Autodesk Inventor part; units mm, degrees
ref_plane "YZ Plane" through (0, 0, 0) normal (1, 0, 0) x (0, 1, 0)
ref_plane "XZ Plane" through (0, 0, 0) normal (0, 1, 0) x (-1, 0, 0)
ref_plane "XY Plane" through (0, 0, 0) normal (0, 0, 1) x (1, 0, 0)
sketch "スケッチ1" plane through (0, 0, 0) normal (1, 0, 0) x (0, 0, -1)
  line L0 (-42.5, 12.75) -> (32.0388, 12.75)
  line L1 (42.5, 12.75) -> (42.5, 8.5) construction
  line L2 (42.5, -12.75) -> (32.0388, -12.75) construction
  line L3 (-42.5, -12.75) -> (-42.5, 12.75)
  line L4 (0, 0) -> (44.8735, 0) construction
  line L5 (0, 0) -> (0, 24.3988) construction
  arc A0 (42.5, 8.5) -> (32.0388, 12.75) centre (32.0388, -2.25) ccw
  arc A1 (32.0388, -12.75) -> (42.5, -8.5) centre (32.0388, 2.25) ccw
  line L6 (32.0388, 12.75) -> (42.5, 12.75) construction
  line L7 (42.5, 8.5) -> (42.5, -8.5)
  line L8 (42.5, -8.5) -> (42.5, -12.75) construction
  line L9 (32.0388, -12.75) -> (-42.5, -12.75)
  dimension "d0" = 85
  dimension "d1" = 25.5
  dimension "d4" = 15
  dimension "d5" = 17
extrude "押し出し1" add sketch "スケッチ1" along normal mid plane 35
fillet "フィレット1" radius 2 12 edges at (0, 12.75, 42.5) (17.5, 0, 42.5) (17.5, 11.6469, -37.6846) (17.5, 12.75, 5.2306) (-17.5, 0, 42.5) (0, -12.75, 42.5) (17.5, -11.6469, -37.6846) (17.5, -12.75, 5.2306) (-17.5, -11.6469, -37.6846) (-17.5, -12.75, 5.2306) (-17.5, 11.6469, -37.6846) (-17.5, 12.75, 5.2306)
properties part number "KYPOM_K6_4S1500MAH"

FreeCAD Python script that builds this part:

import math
import FreeCAD as App
import Part
import Sketcher
from FreeCAD import Vector
Q = App.Units.Quantity


def edges_at(feature, points):
    """Names of the edges that pass closest to the given points."""
    edges = feature.Shape.Edges
    near = lambda p: min(range(len(edges)), key=lambda i: edges[i].distToShape(Part.Vertex(*p))[0])
    return sorted({f"Edge{near(p) + 1}" for p in points})

doc = App.newDocument("Part")
params = doc.addObject("Spreadsheet::Sheet", "Params")
for row, (alias, value) in enumerate([
    ("sketch1_radius", "15 mm"),
    ("sketch1_width", "17 mm"),
    ("sketch1_width2", "25.5 mm"),
    ("pad1_length", "35 mm"),
    ("fillet_radius", "2 mm"),
], start=1):
    params.set(f"A{row}", alias)
    params.set(f"B{row}", "=" + value)
    params.setAlias(f"B{row}", alias)

body = doc.addObject("PartDesign::Body", "Body")

sketch1 = body.newObject("Sketcher::SketchObject", "Sketch")
sketch1.AttachmentSupport = (doc.getObject("YZ_Plane"), [""])
sketch1.MapMode = "FlatFace"
sketch1.addGeometry([
    Part.LineSegment(Vector(13, -32, 0), Vector(13, 42, 0)),
    Part.LineSegment(Vector(13, 42, 0), Vector(-13, 42, 0)),
    Part.LineSegment(Vector(-13, 42, 0), Vector(-13, -32, 0)),
    Part.ArcOfCircle(Part.Circle(Vector(2, -32, 0), Vector(0, 0, 1), 15), math.radians(180), math.radians(224)),
    Part.LineSegment(Vector(-8, -42, 0), Vector(8, -42, 0)),
    Part.ArcOfCircle(Part.Circle(Vector(-2, -32, 0), Vector(0, 0, 1), 15), math.radians(-44), math.radians(0)),
], False)
sketch1.addConstraint([
    Sketcher.Constraint("Coincident", 0, 2, 1, 1),
    Sketcher.Constraint("Coincident", 1, 2, 2, 1),
    Sketcher.Constraint("Tangent", 2, 2, 3, 1),
    Sketcher.Constraint("Coincident", 3, 2, 4, 1),
    Sketcher.Constraint("Coincident", 4, 2, 5, 1),
    Sketcher.Constraint("Tangent", 5, 2, 0, 1),
    Sketcher.Constraint("Vertical", 0),
    Sketcher.Constraint("Horizontal", 1),
    Sketcher.Constraint("Vertical", 2),
    Sketcher.Constraint("Horizontal", 4),
    Sketcher.Constraint("Equal", 3, 5),
    Sketcher.Constraint("Symmetric", 3, 3, 5, 3, -2),
    Sketcher.Constraint("Radius", 3, Q("15 mm")),
    Sketcher.Constraint("DistanceX", 4, 1, 4, 2, Q("17 mm")),
    Sketcher.Constraint("DistanceX", 1, 2, 1, 1, Q("25.5 mm")),
    Sketcher.Constraint("DistanceY", 3, 2, 1, 2, Q("85 mm")),
    Sketcher.Constraint("DistanceY", -1, 1, 0, 2, Q("42.5 mm")),
])
sketch1.setExpression("Constraints[12]", "Params.sketch1_radius")
sketch1.setExpression("Constraints[13]", "Params.sketch1_width")
sketch1.setExpression("Constraints[14]", "Params.sketch1_width2")
pad1 = body.newObject("PartDesign::Pad", "Pad")
pad1.Profile = sketch1
pad1.setExpression("Length", "Params.pad1_length")
pad1.Midplane = True
doc.recompute()

fillet = body.newObject("PartDesign::Fillet", "Fillet")
fillet.Base = (pad1, edges_at(pad1, [
    (0, 12.75, 42.5),
    (17.5, 0, 42.5),
    (17.5, 11.647, -37.685),
    (17.5, 12.75, 5.231),
    (-17.5, 0, 42.5),
    (0, -12.75, 42.5),
    (17.5, -11.647, -37.685),
    (17.5, -12.75, 5.231),
    (-17.5, -11.647, -37.685),
    (-17.5, -12.75, 5.231),
    (-17.5, 11.647, -37.685),
    (-17.5, 12.75, 5.231),
]))
fillet.setExpression("Radius", "Params.fillet_radius")

doc.recompute()
